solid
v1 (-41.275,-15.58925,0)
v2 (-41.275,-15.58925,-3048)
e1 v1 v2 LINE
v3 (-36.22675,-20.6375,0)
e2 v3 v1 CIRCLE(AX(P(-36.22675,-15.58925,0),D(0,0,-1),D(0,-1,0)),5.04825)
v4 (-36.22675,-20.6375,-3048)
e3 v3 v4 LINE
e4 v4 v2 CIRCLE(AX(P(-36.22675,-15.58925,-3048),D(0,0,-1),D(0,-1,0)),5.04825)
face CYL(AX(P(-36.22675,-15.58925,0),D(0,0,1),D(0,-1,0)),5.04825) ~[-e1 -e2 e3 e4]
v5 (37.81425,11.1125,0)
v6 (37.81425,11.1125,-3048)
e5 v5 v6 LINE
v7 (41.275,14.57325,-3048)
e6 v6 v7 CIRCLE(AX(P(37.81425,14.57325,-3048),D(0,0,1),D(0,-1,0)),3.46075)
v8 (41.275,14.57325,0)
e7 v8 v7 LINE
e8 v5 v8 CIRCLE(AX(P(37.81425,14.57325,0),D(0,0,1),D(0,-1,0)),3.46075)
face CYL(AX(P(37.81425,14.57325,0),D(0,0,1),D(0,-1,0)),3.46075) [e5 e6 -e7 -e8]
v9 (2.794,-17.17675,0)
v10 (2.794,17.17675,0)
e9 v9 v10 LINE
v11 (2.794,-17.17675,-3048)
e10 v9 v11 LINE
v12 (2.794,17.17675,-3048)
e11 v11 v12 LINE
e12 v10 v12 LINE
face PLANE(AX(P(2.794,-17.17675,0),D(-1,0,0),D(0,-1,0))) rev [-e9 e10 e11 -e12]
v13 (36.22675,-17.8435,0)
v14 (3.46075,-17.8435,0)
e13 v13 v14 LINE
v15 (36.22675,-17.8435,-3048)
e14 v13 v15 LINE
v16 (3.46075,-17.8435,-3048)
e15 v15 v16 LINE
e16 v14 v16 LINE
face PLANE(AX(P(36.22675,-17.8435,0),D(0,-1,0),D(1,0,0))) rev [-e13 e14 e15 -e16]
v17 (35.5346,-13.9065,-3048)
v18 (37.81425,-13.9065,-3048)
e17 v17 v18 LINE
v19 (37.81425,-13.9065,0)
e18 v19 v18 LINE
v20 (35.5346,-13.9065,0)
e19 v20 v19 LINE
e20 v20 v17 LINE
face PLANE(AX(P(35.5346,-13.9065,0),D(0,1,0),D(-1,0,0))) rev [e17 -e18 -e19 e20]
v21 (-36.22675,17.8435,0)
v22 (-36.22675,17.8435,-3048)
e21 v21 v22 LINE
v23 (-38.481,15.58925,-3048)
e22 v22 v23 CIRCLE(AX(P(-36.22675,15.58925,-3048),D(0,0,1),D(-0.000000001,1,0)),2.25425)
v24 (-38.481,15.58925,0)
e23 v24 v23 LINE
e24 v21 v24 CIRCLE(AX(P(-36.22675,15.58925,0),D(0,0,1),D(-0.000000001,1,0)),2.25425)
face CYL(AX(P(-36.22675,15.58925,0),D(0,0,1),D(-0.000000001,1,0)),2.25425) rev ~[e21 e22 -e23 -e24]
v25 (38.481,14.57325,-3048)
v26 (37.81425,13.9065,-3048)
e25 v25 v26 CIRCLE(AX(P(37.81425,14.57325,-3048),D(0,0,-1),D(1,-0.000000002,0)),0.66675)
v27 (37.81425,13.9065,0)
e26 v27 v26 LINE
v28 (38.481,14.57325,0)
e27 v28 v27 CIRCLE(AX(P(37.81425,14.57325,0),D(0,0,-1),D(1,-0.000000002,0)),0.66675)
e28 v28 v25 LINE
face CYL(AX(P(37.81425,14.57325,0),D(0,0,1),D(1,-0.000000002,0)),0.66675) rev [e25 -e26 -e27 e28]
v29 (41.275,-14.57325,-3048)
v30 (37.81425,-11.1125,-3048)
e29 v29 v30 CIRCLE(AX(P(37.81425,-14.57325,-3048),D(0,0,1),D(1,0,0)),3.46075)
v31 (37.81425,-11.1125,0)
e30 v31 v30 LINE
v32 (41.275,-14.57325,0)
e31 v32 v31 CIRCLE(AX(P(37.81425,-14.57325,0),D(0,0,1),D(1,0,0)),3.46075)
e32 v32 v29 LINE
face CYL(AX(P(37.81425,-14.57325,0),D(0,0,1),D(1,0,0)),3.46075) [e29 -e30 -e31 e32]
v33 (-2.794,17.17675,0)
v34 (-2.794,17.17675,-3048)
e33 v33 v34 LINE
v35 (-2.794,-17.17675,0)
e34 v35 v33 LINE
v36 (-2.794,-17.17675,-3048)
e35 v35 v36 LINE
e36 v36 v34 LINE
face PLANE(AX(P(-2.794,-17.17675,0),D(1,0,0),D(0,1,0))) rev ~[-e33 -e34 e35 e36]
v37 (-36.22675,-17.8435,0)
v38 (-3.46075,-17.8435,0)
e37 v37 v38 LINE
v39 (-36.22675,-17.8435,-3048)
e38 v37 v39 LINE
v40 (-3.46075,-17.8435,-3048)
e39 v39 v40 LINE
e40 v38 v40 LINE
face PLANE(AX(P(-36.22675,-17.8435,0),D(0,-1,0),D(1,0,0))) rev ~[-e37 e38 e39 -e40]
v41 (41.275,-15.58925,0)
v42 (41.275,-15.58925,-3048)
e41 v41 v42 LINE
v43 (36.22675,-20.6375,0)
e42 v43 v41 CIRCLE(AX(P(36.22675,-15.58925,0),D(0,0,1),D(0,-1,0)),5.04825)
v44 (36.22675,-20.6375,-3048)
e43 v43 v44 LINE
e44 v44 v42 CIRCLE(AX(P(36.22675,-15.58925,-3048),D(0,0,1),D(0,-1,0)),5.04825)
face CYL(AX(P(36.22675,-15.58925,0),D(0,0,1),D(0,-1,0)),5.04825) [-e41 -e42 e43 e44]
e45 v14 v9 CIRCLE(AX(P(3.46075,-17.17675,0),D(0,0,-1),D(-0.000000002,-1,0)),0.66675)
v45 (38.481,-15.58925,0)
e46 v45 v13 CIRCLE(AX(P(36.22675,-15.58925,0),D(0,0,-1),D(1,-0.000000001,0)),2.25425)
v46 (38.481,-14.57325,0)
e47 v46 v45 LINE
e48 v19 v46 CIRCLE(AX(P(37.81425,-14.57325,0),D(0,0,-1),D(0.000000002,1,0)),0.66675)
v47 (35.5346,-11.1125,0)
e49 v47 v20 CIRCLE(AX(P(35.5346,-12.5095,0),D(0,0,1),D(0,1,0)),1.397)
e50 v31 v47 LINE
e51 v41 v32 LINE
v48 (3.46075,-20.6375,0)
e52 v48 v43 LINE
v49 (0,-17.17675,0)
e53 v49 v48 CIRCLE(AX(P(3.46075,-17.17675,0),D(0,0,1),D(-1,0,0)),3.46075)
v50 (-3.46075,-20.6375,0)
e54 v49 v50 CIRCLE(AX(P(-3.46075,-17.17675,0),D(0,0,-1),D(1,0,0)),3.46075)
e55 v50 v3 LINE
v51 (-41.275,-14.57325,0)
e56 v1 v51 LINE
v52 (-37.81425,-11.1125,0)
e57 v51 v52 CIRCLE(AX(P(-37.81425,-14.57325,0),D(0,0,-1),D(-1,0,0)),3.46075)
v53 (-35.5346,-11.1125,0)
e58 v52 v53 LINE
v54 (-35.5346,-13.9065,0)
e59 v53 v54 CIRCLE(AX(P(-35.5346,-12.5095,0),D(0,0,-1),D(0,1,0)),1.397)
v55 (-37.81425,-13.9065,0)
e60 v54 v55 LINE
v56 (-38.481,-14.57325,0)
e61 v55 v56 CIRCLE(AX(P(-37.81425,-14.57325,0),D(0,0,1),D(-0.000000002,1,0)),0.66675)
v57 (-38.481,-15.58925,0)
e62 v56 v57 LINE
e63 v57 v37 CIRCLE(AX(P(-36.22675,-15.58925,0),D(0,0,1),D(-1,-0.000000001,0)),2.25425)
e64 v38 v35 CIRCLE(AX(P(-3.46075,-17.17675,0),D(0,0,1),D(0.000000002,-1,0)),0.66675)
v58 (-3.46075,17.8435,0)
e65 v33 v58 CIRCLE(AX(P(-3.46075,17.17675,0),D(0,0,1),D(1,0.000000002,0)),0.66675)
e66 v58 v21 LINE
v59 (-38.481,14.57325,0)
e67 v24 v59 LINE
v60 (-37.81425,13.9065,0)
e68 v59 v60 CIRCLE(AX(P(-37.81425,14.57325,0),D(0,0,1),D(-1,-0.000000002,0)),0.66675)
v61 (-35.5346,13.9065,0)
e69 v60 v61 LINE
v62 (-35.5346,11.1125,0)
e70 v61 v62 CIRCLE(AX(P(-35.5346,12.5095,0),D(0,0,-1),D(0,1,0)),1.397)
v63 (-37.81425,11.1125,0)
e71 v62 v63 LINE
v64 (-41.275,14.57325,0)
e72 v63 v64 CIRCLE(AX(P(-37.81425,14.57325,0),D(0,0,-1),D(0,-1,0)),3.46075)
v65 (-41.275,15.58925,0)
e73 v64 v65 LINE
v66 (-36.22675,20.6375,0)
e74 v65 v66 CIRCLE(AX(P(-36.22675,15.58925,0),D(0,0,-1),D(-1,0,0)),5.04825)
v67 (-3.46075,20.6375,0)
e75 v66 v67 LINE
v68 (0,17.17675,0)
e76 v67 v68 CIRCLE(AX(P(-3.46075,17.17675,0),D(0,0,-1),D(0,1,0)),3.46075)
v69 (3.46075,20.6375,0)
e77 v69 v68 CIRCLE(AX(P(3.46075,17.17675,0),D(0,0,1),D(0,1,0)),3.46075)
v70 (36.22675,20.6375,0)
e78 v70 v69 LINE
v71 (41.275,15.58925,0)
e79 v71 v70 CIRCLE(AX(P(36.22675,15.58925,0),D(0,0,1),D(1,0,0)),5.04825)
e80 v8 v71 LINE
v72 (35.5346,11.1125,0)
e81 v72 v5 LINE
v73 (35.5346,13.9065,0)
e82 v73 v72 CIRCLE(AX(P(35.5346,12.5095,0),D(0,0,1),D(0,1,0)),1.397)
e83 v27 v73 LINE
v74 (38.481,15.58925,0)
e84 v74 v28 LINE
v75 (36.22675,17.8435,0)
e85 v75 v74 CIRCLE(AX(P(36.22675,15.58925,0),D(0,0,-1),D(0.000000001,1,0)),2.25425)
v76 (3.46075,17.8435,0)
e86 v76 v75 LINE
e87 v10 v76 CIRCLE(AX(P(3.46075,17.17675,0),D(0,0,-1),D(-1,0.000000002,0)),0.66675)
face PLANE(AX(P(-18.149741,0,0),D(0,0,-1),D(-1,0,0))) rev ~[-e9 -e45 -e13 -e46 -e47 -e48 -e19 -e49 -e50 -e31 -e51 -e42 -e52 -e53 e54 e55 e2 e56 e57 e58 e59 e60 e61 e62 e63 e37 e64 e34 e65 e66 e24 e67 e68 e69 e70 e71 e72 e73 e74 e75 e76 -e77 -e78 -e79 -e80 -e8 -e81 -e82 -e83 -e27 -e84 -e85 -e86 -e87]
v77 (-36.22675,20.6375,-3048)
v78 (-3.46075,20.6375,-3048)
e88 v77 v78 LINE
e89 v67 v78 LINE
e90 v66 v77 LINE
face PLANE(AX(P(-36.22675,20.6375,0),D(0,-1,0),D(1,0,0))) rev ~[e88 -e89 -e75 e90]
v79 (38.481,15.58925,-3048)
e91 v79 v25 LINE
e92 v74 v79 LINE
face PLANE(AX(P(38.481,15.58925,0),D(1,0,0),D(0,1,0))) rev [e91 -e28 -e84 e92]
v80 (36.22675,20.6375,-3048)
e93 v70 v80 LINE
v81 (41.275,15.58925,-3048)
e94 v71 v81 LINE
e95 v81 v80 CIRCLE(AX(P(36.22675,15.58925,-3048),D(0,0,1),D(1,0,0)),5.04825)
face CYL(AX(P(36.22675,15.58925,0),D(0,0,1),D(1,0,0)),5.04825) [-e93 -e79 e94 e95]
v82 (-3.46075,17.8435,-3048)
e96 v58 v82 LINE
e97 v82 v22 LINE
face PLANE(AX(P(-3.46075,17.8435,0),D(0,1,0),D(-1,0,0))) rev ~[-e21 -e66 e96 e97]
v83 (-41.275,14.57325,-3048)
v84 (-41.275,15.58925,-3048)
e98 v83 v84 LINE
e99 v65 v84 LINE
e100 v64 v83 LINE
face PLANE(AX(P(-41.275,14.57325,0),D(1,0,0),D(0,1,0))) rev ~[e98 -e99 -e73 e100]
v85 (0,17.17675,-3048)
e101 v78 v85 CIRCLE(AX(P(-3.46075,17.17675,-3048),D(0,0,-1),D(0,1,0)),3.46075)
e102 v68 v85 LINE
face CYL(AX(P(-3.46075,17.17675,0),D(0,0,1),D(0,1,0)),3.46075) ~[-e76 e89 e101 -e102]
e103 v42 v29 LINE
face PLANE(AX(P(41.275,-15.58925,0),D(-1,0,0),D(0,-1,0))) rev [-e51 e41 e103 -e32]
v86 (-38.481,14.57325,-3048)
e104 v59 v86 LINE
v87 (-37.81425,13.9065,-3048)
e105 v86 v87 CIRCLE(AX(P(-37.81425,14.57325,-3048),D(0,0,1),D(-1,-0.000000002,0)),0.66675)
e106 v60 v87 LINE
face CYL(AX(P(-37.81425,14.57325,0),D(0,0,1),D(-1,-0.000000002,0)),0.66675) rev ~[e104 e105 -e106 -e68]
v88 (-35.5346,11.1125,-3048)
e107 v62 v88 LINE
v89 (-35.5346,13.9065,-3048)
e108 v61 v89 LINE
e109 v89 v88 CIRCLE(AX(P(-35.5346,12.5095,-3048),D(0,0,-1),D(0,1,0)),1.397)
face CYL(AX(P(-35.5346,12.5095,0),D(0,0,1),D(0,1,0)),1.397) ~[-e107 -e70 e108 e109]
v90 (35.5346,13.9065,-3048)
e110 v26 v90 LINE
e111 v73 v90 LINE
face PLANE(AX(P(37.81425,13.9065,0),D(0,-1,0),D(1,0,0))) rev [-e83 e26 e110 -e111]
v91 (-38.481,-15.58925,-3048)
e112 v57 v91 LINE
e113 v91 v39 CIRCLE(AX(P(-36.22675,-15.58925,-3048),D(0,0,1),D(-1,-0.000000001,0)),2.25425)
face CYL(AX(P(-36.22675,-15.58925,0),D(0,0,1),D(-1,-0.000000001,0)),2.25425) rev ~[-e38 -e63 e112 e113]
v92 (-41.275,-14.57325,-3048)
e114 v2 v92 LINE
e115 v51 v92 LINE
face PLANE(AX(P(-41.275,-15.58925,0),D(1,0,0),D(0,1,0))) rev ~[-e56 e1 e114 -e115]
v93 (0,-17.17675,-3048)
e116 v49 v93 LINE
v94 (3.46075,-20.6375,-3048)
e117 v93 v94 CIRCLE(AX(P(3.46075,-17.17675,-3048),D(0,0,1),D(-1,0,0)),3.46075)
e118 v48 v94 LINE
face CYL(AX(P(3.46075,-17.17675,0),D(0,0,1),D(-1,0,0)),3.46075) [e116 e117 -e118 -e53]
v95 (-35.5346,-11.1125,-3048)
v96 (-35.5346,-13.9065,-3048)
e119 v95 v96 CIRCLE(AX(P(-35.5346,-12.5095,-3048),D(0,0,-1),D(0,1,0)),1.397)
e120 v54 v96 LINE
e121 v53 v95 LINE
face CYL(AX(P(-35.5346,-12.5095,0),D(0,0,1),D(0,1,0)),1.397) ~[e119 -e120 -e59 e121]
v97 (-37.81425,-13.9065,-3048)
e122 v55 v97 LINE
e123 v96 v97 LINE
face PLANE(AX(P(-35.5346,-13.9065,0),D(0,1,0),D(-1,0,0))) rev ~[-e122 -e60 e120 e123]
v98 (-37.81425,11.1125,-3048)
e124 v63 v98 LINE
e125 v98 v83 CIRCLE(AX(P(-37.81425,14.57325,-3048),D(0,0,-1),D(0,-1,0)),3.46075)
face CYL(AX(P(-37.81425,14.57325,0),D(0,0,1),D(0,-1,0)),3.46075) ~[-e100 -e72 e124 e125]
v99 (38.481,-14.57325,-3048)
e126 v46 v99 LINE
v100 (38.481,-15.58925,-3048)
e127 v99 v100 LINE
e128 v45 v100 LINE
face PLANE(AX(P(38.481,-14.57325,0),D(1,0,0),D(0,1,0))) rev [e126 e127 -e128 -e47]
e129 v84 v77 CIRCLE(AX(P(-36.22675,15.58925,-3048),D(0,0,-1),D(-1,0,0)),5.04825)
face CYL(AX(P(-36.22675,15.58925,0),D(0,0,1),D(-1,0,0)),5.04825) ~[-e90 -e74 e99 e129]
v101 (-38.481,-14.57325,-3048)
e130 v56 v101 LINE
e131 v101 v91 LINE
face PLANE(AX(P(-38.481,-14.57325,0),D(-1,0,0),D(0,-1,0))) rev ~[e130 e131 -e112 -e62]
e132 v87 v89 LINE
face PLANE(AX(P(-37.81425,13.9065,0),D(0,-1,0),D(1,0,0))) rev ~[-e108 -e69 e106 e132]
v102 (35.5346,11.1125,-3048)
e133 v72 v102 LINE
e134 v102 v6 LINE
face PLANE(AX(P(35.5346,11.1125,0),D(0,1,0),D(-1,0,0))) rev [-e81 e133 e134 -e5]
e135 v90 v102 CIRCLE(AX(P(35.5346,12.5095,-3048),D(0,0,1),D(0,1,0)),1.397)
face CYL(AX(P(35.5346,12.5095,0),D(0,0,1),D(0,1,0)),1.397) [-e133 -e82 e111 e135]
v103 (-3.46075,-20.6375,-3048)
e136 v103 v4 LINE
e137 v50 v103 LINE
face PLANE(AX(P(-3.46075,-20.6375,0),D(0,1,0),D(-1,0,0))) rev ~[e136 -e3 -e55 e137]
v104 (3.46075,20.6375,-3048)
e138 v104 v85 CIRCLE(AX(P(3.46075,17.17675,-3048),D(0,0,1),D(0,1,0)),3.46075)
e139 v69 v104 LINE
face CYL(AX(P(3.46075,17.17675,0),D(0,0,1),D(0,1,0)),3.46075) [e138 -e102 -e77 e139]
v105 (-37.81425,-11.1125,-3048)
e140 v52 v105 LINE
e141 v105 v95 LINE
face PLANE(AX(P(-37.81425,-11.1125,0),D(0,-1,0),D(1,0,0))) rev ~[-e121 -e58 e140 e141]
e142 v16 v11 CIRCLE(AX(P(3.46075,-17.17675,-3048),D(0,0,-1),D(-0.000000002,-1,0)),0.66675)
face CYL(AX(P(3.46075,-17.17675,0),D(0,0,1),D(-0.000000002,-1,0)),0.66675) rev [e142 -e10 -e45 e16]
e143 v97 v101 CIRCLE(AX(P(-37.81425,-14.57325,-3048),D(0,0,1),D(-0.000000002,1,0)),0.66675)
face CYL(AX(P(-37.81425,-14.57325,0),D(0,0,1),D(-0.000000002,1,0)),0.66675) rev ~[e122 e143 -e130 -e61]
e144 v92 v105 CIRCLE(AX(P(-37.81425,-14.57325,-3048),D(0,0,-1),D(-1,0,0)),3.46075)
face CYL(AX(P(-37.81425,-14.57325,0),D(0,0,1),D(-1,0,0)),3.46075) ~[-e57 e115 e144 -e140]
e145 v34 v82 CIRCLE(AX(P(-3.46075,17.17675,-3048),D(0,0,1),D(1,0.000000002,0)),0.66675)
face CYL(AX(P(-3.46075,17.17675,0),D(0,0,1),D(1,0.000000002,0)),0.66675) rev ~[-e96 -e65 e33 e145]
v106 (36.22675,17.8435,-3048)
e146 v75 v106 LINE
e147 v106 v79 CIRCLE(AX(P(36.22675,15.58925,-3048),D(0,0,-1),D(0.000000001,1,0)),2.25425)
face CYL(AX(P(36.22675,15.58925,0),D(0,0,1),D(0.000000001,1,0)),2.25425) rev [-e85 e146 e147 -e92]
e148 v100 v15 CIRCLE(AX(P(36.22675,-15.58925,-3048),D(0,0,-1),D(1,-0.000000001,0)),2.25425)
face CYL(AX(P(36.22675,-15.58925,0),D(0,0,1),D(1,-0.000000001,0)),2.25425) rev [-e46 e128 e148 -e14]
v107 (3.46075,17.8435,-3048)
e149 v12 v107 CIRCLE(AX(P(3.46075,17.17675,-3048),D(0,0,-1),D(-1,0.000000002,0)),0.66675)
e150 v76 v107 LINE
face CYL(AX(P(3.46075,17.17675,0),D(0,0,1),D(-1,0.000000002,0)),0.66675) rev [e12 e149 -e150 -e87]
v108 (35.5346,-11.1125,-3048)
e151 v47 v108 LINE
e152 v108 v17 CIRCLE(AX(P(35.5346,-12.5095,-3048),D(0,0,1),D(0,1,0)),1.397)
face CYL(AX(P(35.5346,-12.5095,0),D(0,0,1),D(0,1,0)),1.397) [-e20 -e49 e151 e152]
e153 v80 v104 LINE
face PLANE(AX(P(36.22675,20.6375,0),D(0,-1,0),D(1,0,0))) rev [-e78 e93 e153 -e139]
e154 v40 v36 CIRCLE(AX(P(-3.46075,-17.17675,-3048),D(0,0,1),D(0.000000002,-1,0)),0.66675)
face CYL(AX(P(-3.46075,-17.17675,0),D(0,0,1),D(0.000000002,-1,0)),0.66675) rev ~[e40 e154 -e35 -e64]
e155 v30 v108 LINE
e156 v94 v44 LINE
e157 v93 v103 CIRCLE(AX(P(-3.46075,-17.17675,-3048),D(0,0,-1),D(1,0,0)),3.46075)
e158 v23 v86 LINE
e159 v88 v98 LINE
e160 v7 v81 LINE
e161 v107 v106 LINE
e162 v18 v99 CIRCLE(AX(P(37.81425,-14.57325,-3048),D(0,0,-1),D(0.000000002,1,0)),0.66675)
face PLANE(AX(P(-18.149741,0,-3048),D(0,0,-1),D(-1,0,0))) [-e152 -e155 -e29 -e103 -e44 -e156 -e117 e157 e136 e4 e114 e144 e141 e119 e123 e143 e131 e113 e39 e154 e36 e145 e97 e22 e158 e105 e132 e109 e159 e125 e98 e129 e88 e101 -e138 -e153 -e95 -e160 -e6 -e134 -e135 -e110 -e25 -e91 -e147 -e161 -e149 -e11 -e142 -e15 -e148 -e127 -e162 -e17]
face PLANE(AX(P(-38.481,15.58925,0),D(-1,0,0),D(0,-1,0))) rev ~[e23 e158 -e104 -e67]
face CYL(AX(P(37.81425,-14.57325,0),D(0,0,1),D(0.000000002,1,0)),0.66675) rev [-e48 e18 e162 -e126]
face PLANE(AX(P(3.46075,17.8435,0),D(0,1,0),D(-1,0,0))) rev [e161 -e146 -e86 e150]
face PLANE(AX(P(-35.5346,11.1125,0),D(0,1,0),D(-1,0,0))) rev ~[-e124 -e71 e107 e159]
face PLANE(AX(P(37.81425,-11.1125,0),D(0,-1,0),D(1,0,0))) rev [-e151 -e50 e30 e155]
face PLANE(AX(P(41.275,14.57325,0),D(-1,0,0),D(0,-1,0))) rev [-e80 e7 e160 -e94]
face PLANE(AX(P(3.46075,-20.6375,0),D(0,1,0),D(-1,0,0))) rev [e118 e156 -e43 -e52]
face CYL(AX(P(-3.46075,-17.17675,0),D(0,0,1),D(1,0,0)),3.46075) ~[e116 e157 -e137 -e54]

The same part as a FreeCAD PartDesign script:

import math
import FreeCAD as App
import Part
import Sketcher

V = App.Vector
Q = App.Units.Quantity

doc = App.newDocument("Part")
body = doc.addObject("PartDesign::Body", "Body")

sketch1 = body.newObject("Sketcher::SketchObject", "Sketch")
sketch1.AttachmentSupport = (doc.getObject("XY_Plane"), [""])
sketch1.MapMode = "FlatFace"
sketch1.addGeometry([
    Part.LineSegment(V(-3.5, 20.6, 0), V(-36.2, 20.6, 0)),
    Part.ArcOfCircle(Part.Circle(V(-36.2, 15.6, 0), V(0, 0, 1), 5), math.radians(90), math.radians(180)),
    Part.LineSegment(V(-41.3, 15.6, 0), V(-41.3, 14.6, 0)),
    Part.ArcOfCircle(Part.Circle(V(-37.8, 14.6, 0), V(0, 0, 1), 3.5), math.radians(180), math.radians(270)),
    Part.LineSegment(V(-37.8, 11.1, 0), V(-35.5, 11.1, 0)),
    Part.ArcOfCircle(Part.Circle(V(-35.5, 12.5, 0), V(0, 0, 1), 1.4), math.radians(-90), math.radians(90)),
    Part.LineSegment(V(-35.5, 13.9, 0), V(-37.8, 13.9, 0)),
    Part.ArcOfCircle(Part.Circle(V(-37.8, 14.6, 0), V(0, 0, 1), 0.7), math.radians(-180), math.radians(-90)),
    Part.LineSegment(V(-38.5, 14.6, 0), V(-38.5, 15.6, 0)),
    Part.ArcOfCircle(Part.Circle(V(-36.2, 15.6, 0), V(0, 0, 1), 2.3), math.radians(90), math.radians(180)),
    Part.LineSegment(V(-36.2, 17.8, 0), V(-3.5, 17.8, 0)),
    Part.ArcOfCircle(Part.Circle(V(-3.5, 17.2, 0), V(0, 0, 1), 0.7), math.radians(0), math.radians(90)),
    Part.LineSegment(V(-2.8, 17.2, 0), V(-2.8, -17.2, 0)),
    Part.ArcOfCircle(Part.Circle(V(-3.5, -17.2, 0), V(0, 0, 1), 0.7), math.radians(-90), math.radians(0)),
    Part.LineSegment(V(-3.5, -17.8, 0), V(-36.2, -17.8, 0)),
    Part.ArcOfCircle(Part.Circle(V(-36.2, -15.6, 0), V(0, 0, 1), 2.3), math.radians(-180), math.radians(-90)),
    Part.LineSegment(V(-38.5, -15.6, 0), V(-38.5, -14.6, 0)),
    Part.ArcOfCircle(Part.Circle(V(-37.8, -14.6, 0), V(0, 0, 1), 0.7), math.radians(90), math.radians(180)),
    Part.LineSegment(V(-37.8, -13.9, 0), V(-35.5, -13.9, 0)),
    Part.ArcOfCircle(Part.Circle(V(-35.5, -12.5, 0), V(0, 0, 1), 1.4), math.radians(-90), math.radians(90)),
    Part.LineSegment(V(-35.5, -11.1, 0), V(-37.8, -11.1, 0)),
    Part.ArcOfCircle(Part.Circle(V(-37.8, -14.6, 0), V(0, 0, 1), 3.5), math.radians(90), math.radians(180)),
    Part.LineSegment(V(-41.3, -14.6, 0), V(-41.3, -15.6, 0)),
    Part.ArcOfCircle(Part.Circle(V(-36.2, -15.6, 0), V(0, 0, 1), 5), math.radians(180), math.radians(270)),
    Part.LineSegment(V(-36.2, -20.6, 0), V(-3.5, -20.6, 0)),
    Part.ArcOfCircle(Part.Circle(V(-3.5, -17.2, 0), V(0, 0, 1), 3.5), math.radians(-90), math.radians(0)),
    Part.LineSegment(V(0, -17.2, 0), V(0, 17.2, 0)),
    Part.ArcOfCircle(Part.Circle(V(-3.5, 17.2, 0), V(0, 0, 1), 3.5), math.radians(0), math.radians(90)),
], False)
sketch1.addConstraint([
    Sketcher.Constraint("Tangent", 0, 2, 1, 1),
    Sketcher.Constraint("Tangent", 1, 2, 2, 1),
    Sketcher.Constraint("Tangent", 2, 2, 3, 1),
    Sketcher.Constraint("Tangent", 3, 2, 4, 1),
    Sketcher.Constraint("Tangent", 4, 2, 5, 1),
    Sketcher.Constraint("Tangent", 5, 2, 6, 1),
    Sketcher.Constraint("Tangent", 6, 2, 7, 2),
    Sketcher.Constraint("Tangent", 7, 1, 8, 1),
    Sketcher.Constraint("Tangent", 8, 2, 9, 2),
    Sketcher.Constraint("Tangent", 9, 1, 10, 1),
    Sketcher.Constraint("Tangent", 10, 2, 11, 2),
    Sketcher.Constraint("Tangent", 11, 1, 12, 1),
    Sketcher.Constraint("Tangent", 12, 2, 13, 2),
    Sketcher.Constraint("Tangent", 13, 1, 14, 1),
    Sketcher.Constraint("Tangent", 14, 2, 15, 2),
    Sketcher.Constraint("Tangent", 15, 1, 16, 1),
    Sketcher.Constraint("Tangent", 16, 2, 17, 2),
    Sketcher.Constraint("Tangent", 17, 1, 18, 1),
    Sketcher.Constraint("Tangent", 18, 2, 19, 1),
    Sketcher.Constraint("Tangent", 19, 2, 20, 1),
    Sketcher.Constraint("Tangent", 20, 2, 21, 1),
    Sketcher.Constraint("Tangent", 21, 2, 22, 1),
    Sketcher.Constraint("Tangent", 22, 2, 23, 1),
    Sketcher.Constraint("Tangent", 23, 2, 24, 1),
    Sketcher.Constraint("Tangent", 24, 2, 25, 1),
    Sketcher.Constraint("Tangent", 25, 2, 26, 1),
    Sketcher.Constraint("Tangent", 26, 2, 27, 1),
    Sketcher.Constraint("Tangent", 27, 2, 0, 1),
    Sketcher.Constraint("Horizontal", 0),
    Sketcher.Constraint("Vertical", 2),
    Sketcher.Constraint("Horizontal", 4),
    Sketcher.Constraint("Horizontal", 6),
    Sketcher.Constraint("Vertical", 8),
    Sketcher.Constraint("Horizontal", 10),
    Sketcher.Constraint("Vertical", 12),
    Sketcher.Constraint("Horizontal", 14),
    Sketcher.Constraint("Vertical", 16),
    Sketcher.Constraint("Horizontal", 18),
    Sketcher.Constraint("Horizontal", 20),
    Sketcher.Constraint("Vertical", 22),
    Sketcher.Constraint("Horizontal", 24),
    Sketcher.Constraint("Vertical", 26),
    Sketcher.Constraint("Coincident", 7, 3, 3, 3),
    Sketcher.Constraint("Coincident", 9, 3, 1, 3),
    Sketcher.Constraint("Coincident", 21, 3, 17, 3),
    Sketcher.Constraint("Coincident", 23, 3, 15, 3),
    Sketcher.Constraint("Coincident", 25, 3, 13, 3),
    Sketcher.Constraint("Coincident", 27, 3, 11, 3),
    Sketcher.Constraint("Equal", 7, 11),
    Sketcher.Constraint("Equal", 11, 13),
    Sketcher.Constraint("Equal", 9, 15),
    Sketcher.Constraint("Equal", 13, 17),
    Sketcher.Constraint("Symmetric", 25, 2, 26, 2, -1, 1),
    Sketcher.Constraint("Symmetric", 3, 3, 17, 3, -1),
    Sketcher.Constraint("Vertical", 5, 3, 19, 3),
    Sketcher.Constraint("Radius", 5, Q("0.055 in")),
    Sketcher.Constraint("DistanceX", 0, 2, 0, 1, Q("1.29 in")),
    Sketcher.Constraint("DistanceY", 2, 2, 2, 1, Q("0.04 in")),
    Sketcher.Constraint("DistanceY", 13, 3, 9, 3, Q("1.29 in")),
    Sketcher.Constraint("DistanceY", 5, 3, 0, 2, Q("0.32 in")),
    Sketcher.Constraint("DistanceY", 12, 2, 12, 1, Q("1.3525 in")),
    Sketcher.Constraint("DistanceX", 5, 3, -1, 1, Q("1.399 in")),
])
pad1 = body.newObject("PartDesign::Pad", "Pad")
pad1.Profile = sketch1
pad1.Length = Q("120 in")
pad1.Reversed = True
body2 = doc.addObject("PartDesign::Body", "Body001")
doc.recompute()

mirroring = doc.addObject("Part::Mirroring", "Mirroring")
mirroring.Source = body
mirroring.Base = V(0, 17.17675, -3048)
mirroring.Normal = V(1, 0, 0)
body2.BaseFeature = mirroring
doc.recompute()

boolean = body2.newObject("PartDesign::Boolean", "Boolean")
boolean.Type = "Fuse"
boolean.addObjects([body])
mirroring.Visibility = False

doc.recompute()
